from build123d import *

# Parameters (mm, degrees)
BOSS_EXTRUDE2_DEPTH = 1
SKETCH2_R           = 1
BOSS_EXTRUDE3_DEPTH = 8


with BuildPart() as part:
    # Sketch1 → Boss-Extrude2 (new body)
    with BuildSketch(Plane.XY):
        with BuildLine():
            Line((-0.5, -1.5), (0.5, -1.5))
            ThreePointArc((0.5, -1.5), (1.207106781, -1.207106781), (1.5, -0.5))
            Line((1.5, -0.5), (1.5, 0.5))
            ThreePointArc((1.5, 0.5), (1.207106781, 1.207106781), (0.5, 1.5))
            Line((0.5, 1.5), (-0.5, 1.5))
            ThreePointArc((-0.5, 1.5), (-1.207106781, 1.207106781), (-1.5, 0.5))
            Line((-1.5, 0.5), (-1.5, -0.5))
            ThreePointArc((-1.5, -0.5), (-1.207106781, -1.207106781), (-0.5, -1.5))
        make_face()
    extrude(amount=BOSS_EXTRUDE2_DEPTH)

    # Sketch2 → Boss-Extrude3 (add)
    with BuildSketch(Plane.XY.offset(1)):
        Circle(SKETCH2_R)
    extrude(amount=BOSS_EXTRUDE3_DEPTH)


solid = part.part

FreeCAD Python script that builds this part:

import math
import FreeCAD as App
import Part
import Sketcher
from FreeCAD import Vector
Q = App.Units.Quantity

doc = App.newDocument("Part")
body = doc.addObject("PartDesign::Body", "Body")

# Sketch on XY plane
sketch1 = doc.addObject("Sketcher::SketchObject", "Sketch")
body.addObject(sketch1)
sketch1.AttachmentSupport = (doc.XY_Plane, [""])
sketch1.MapMode = "FlatFace"
sketch1.addGeometry([
    Part.LineSegment(Vector(-0.5, -1.5, 0), Vector(0.5, -1.5, 0)),  # 0
    Part.ArcOfCircle(Part.Circle(Vector(0.5, -0.5, 0), Vector(0, 0, 1), 1), math.radians(-90), math.radians(0)),  # 1
    Part.LineSegment(Vector(1.5, -0.5, 0), Vector(1.5, 0.5, 0)),  # 2
    Part.ArcOfCircle(Part.Circle(Vector(0.5, 0.5, 0), Vector(0, 0, 1), 1), math.radians(0), math.radians(90)),  # 3
    Part.LineSegment(Vector(0.5, 1.5, 0), Vector(-0.5, 1.5, 0)),  # 4
    Part.ArcOfCircle(Part.Circle(Vector(-0.5, 0.5, 0), Vector(0, 0, 1), 1), math.radians(90), math.radians(180)),  # 5
    Part.LineSegment(Vector(-1.5, 0.5, 0), Vector(-1.5, -0.5, 0)),  # 6
    Part.ArcOfCircle(Part.Circle(Vector(-0.5, -0.5, 0), Vector(0, 0, 1), 1), math.radians(-180), math.radians(-90)),  # 7
], False)
sketch1.addConstraint([
    Sketcher.Constraint("Tangent", 0, 2, 1, 1),
    Sketcher.Constraint("Tangent", 1, 2, 2, 1),
    Sketcher.Constraint("Tangent", 2, 2, 3, 1),
    Sketcher.Constraint("Tangent", 3, 2, 4, 1),
    Sketcher.Constraint("Tangent", 4, 2, 5, 1),
    Sketcher.Constraint("Tangent", 5, 2, 6, 1),
    Sketcher.Constraint("Tangent", 6, 2, 7, 1),
    Sketcher.Constraint("Tangent", 7, 2, 0, 1),
    Sketcher.Constraint("Horizontal", 0),
    Sketcher.Constraint("Vertical", 2),
    Sketcher.Constraint("Horizontal", 4),
    Sketcher.Constraint("Vertical", 6),
    Sketcher.Constraint("Equal", 1, 3),
    Sketcher.Constraint("Equal", 3, 5),
    Sketcher.Constraint("Equal", 5, 7),
    Sketcher.Constraint("Symmetric", 1, 3, 5, 3, -1, 1),
    Sketcher.Constraint("Equal", 4, 2),
    Sketcher.Constraint("Radius", 1, Q("1 mm")),
    Sketcher.Constraint("DistanceX", 0, 1, 0, 2, Q("1 mm")),
])
pad1 = doc.addObject("PartDesign::Pad", "Pad")
body.addObject(pad1)
pad1.Profile = sketch1
pad1.Length = 1

# Sketch on XY plane
sketch2 = doc.addObject("Sketcher::SketchObject", "Sketch001")
body.addObject(sketch2)
sketch2.AttachmentSupport = (doc.XY_Plane, [""])
sketch2.MapMode = "FlatFace"
sketch2.AttachmentOffset = App.Placement(Vector(0, 0, 1), App.Rotation())
sketch2.addGeometry(Part.Circle(Vector(0, 0, 0), Vector(0, 0, 1), 1), False)
sketch2.addConstraint([
    Sketcher.Constraint("Coincident", 0, 3, -1, 1),
    Sketcher.Constraint("Diameter", 0, Q("2 mm")),
])
pad2 = doc.addObject("PartDesign::Pad", "Pad001")
body.addObject(pad2)
pad2.Profile = sketch2
pad2.Length = 8

doc.recompute()
